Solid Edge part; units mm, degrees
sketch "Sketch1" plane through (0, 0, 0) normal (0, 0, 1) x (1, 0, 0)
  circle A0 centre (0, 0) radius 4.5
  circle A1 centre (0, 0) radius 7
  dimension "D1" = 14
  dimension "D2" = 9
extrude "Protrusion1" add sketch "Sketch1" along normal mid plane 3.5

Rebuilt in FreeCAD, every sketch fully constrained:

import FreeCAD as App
import Part
import Sketcher
from FreeCAD import Vector

doc = App.newDocument("Part")
body = doc.addObject("PartDesign::Body", "Body")

# Sketch on XY plane
sketch1 = body.newObject("Sketcher::SketchObject", "Sketch")
sketch1.AttachmentSupport = (doc.getObject("XY_Plane"), [""])
sketch1.MapMode = "FlatFace"
sketch1.addGeometry([
    Part.Circle(Vector(0, 0, 0), Vector(0, 0, 1), 7),
    Part.Circle(Vector(0, 0, 0), Vector(0, 0, 1), 4.5),
], False)
sketch1.addConstraint([
    Sketcher.Constraint("Coincident", 0, 3, -1, 1),
    Sketcher.Constraint("Coincident", 1, 3, -1, 1),
    Sketcher.Constraint("Diameter", 0, 14.0),
    Sketcher.Constraint("Diameter", 1, 9.0),
])
pad1 = body.newObject("PartDesign::Pad", "Pad")
pad1.Profile = sketch1
pad1.Length = 3.5
pad1.Midplane = True

doc.recompute()
